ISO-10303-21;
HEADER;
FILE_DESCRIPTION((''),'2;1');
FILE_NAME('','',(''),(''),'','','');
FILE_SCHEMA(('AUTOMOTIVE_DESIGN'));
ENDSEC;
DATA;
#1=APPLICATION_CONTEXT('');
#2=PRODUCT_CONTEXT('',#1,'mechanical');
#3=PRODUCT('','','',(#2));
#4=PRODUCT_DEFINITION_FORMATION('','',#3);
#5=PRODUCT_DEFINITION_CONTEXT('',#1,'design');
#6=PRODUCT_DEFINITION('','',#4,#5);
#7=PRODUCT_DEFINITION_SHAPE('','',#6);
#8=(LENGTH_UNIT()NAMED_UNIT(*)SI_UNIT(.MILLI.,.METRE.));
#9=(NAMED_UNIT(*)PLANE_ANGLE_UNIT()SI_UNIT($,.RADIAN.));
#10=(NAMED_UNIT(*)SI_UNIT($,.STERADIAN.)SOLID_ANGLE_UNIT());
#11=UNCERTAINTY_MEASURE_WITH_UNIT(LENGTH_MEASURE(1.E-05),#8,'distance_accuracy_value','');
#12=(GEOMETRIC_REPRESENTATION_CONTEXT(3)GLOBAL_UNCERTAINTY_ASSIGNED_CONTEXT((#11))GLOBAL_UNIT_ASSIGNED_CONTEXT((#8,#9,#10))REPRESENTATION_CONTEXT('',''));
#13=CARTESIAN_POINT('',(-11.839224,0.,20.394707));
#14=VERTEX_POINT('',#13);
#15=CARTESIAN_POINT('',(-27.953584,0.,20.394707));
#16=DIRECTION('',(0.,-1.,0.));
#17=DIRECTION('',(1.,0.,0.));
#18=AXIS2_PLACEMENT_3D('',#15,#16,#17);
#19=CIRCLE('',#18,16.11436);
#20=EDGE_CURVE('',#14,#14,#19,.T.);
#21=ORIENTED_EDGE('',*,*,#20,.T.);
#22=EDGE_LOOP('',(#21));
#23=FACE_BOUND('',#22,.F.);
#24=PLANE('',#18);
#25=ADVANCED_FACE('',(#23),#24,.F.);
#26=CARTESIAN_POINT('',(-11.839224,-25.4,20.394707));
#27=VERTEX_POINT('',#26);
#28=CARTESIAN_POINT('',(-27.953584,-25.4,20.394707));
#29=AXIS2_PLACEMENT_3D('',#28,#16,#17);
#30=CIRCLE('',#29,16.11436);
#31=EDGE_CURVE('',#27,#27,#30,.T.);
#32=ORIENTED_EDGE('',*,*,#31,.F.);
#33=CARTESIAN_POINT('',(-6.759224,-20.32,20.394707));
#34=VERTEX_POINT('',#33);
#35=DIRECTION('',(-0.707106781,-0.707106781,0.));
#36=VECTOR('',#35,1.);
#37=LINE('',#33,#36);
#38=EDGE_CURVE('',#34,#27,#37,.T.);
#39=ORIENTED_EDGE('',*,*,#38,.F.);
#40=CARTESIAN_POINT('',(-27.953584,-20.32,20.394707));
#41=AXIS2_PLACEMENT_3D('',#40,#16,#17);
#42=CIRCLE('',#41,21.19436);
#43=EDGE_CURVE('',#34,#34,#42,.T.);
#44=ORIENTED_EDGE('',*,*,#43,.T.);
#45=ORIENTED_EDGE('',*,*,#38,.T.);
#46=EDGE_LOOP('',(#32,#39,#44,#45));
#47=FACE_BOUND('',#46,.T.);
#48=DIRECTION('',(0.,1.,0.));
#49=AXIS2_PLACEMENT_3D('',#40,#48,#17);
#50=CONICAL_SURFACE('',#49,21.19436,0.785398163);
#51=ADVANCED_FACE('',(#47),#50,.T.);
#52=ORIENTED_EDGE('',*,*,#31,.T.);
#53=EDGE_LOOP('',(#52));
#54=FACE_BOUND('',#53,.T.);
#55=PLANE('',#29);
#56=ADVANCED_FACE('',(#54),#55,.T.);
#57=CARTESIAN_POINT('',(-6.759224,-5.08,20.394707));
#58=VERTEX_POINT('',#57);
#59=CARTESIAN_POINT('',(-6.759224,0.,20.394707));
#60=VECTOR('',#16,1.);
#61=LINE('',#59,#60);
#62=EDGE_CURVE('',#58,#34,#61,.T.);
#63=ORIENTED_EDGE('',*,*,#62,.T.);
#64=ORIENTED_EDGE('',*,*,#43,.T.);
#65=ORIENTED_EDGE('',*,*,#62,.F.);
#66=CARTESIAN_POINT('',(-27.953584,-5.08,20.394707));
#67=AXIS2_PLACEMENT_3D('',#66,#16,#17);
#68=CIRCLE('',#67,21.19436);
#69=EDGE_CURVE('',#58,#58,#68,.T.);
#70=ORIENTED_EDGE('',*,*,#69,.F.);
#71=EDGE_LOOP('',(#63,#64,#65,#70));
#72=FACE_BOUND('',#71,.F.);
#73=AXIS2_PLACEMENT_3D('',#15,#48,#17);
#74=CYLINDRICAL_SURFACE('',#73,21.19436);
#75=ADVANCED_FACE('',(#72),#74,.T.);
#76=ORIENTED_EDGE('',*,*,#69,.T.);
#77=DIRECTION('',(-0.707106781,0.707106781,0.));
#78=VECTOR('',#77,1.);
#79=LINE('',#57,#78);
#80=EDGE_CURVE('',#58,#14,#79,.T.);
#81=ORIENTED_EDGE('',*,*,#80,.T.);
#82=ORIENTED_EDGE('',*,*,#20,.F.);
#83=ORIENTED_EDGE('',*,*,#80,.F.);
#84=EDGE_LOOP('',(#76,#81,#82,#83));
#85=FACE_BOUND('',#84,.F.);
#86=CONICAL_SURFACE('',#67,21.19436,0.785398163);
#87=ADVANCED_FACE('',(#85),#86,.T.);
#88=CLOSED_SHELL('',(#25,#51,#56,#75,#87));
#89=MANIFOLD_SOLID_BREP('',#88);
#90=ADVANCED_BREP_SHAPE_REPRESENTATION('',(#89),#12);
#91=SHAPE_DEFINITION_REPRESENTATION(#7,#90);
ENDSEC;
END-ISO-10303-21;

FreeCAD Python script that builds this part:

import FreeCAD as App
import Part
import Sketcher
from FreeCAD import Vector
Q = App.Units.Quantity

doc = App.newDocument("Part")
body = doc.addObject("PartDesign::Body", "Body")

# Sketch on XZ plane
sketch1 = doc.addObject("Sketcher::SketchObject", "Sketch")
body.addObject(sketch1)
sketch1.AttachmentSupport = (doc.XZ_Plane, [""])
sketch1.MapMode = "FlatFace"
sketch1.addGeometry(Part.Circle(Vector(-28, 20, 0), Vector(0, 0, 1), 21), False)
sketch1.addConstraint([
    Sketcher.Constraint("Diameter", 0, Q("42.38872 mm")),
    Sketcher.Constraint("DistanceX", 0, 3, -1, 1, Q("27.953584 mm")),
    Sketcher.Constraint("DistanceY", -1, 1, 0, 3, Q("20.394707 mm")),
])
pad1 = doc.addObject("PartDesign::Pad", "Pad")
body.addObject(pad1)
pad1.Profile = sketch1
pad1.Length = Q("1 in")
doc.recompute()

chamfer = doc.addObject("PartDesign::Chamfer", "Chamfer")
body.addObject(chamfer)
chamfer.Base = (pad1, ["Edge1"])
chamfer.UseAllEdges = True
chamfer.Size = Q("0.2 in")

doc.recompute()
